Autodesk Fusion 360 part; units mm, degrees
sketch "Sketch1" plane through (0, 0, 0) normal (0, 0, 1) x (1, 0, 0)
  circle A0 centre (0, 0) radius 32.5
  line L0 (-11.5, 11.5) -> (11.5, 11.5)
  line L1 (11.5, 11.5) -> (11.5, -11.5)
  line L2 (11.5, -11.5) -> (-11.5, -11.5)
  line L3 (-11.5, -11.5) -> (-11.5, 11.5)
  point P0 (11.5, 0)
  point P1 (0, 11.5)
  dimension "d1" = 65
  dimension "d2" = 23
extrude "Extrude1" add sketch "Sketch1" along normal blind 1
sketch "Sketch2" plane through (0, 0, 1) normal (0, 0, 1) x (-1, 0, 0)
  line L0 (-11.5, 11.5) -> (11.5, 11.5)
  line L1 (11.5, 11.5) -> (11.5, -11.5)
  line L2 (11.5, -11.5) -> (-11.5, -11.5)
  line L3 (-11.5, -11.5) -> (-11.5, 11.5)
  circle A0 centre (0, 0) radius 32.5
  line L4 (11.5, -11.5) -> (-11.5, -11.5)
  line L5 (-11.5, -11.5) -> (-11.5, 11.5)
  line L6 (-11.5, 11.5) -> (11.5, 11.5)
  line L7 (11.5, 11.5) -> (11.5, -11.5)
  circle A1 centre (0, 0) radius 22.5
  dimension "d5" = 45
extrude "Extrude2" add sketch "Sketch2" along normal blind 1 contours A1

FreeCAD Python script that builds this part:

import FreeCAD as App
import Part
import Sketcher

V = App.Vector
Q = App.Units.Quantity

doc = App.newDocument("Part")
body = doc.addObject("PartDesign::Body", "Body")

# Sketch on XY plane
sketch1 = body.newObject("Sketcher::SketchObject", "Sketch")
sketch1.AttachmentSupport = (doc.getObject("XY_Plane"), [""])
sketch1.MapMode = "FlatFace"
sketch1.addGeometry(Part.Circle(V(0, 0, 0), V(0, 0, 1), 32), False)
sketch1.addGeometry(Part.LineSegment(V(-12, -12, 0), V(-12, 12, 0)), False)
sketch1.addGeometry(Part.LineSegment(V(-12, 12, 0), V(12, 12, 0)), False)
sketch1.addGeometry(Part.LineSegment(V(12, 12, 0), V(12, -12, 0)), False)
sketch1.addGeometry(Part.LineSegment(V(12, -12, 0), V(-12, -12, 0)), False)
sketch1.addConstraint(Sketcher.Constraint("Coincident", 1, 2, 2, 1))
sketch1.addConstraint(Sketcher.Constraint("Coincident", 2, 2, 3, 1))
sketch1.addConstraint(Sketcher.Constraint("Coincident", 3, 2, 4, 1))
sketch1.addConstraint(Sketcher.Constraint("Coincident", 4, 2, 1, 1))
sketch1.addConstraint(Sketcher.Constraint("Vertical", 1))
sketch1.addConstraint(Sketcher.Constraint("Horizontal", 2))
sketch1.addConstraint(Sketcher.Constraint("Vertical", 3))
sketch1.addConstraint(Sketcher.Constraint("Horizontal", 4))
sketch1.addConstraint(Sketcher.Constraint("Coincident", 0, 3, -1, 1))
sketch1.addConstraint(Sketcher.Constraint("Symmetric", 1, 2, 3, 2, -1, 1))
sketch1.addConstraint(Sketcher.Constraint("Equal", 4, 1))
sketch1.addConstraint(Sketcher.Constraint("Diameter", 0, Q("65 mm")))
sketch1.addConstraint(Sketcher.Constraint("DistanceX", 2, 1, 2, 2, Q("23 mm")))
pad1 = body.newObject("PartDesign::Pad", "Pad")
pad1.Profile = sketch1
pad1.Length = 1

# Sketch on XY plane
sketch2 = body.newObject("Sketcher::SketchObject", "Sketch001")
sketch2.AttachmentSupport = (doc.getObject("XY_Plane"), [""])
sketch2.MapMode = "FlatFace"
sketch2.AttachmentOffset = App.Placement(V(0, 0, 1), App.Rotation())
sketch2.addGeometry(Part.Circle(V(0, 0, 0), V(0, 0, 1), 22), False)
sketch2.addGeometry(Part.LineSegment(V(12, 12, 0), V(12, -12, 0)), False)
sketch2.addGeometry(Part.LineSegment(V(12, -12, 0), V(-12, -12, 0)), False)
sketch2.addGeometry(Part.LineSegment(V(-12, -12, 0), V(-12, 12, 0)), False)
sketch2.addGeometry(Part.LineSegment(V(-12, 12, 0), V(12, 12, 0)), False)
sketch2.addConstraint(Sketcher.Constraint("Coincident", 1, 2, 2, 1))
sketch2.addConstraint(Sketcher.Constraint("Coincident", 2, 2, 3, 1))
sketch2.addConstraint(Sketcher.Constraint("Coincident", 3, 2, 4, 1))
sketch2.addConstraint(Sketcher.Constraint("Coincident", 4, 2, 1, 1))
sketch2.addConstraint(Sketcher.Constraint("Vertical", 1))
sketch2.addConstraint(Sketcher.Constraint("Horizontal", 2))
sketch2.addConstraint(Sketcher.Constraint("Vertical", 3))
sketch2.addConstraint(Sketcher.Constraint("Horizontal", 4))
sketch2.addConstraint(Sketcher.Constraint("Coincident", 0, 3, -1, 1))
sketch2.addConstraint(Sketcher.Constraint("Symmetric", 1, 2, 3, 2, -1, 1))
sketch2.addConstraint(Sketcher.Constraint("Equal", 4, 1))
sketch2.addConstraint(Sketcher.Constraint("Diameter", 0, Q("45 mm")))
sketch2.addConstraint(Sketcher.Constraint("DistanceX", 2, 2, 2, 1, Q("23 mm")))
pad2 = body.newObject("PartDesign::Pad", "Pad001")
pad2.Profile = sketch2
pad2.Length = 1

doc.recompute()
